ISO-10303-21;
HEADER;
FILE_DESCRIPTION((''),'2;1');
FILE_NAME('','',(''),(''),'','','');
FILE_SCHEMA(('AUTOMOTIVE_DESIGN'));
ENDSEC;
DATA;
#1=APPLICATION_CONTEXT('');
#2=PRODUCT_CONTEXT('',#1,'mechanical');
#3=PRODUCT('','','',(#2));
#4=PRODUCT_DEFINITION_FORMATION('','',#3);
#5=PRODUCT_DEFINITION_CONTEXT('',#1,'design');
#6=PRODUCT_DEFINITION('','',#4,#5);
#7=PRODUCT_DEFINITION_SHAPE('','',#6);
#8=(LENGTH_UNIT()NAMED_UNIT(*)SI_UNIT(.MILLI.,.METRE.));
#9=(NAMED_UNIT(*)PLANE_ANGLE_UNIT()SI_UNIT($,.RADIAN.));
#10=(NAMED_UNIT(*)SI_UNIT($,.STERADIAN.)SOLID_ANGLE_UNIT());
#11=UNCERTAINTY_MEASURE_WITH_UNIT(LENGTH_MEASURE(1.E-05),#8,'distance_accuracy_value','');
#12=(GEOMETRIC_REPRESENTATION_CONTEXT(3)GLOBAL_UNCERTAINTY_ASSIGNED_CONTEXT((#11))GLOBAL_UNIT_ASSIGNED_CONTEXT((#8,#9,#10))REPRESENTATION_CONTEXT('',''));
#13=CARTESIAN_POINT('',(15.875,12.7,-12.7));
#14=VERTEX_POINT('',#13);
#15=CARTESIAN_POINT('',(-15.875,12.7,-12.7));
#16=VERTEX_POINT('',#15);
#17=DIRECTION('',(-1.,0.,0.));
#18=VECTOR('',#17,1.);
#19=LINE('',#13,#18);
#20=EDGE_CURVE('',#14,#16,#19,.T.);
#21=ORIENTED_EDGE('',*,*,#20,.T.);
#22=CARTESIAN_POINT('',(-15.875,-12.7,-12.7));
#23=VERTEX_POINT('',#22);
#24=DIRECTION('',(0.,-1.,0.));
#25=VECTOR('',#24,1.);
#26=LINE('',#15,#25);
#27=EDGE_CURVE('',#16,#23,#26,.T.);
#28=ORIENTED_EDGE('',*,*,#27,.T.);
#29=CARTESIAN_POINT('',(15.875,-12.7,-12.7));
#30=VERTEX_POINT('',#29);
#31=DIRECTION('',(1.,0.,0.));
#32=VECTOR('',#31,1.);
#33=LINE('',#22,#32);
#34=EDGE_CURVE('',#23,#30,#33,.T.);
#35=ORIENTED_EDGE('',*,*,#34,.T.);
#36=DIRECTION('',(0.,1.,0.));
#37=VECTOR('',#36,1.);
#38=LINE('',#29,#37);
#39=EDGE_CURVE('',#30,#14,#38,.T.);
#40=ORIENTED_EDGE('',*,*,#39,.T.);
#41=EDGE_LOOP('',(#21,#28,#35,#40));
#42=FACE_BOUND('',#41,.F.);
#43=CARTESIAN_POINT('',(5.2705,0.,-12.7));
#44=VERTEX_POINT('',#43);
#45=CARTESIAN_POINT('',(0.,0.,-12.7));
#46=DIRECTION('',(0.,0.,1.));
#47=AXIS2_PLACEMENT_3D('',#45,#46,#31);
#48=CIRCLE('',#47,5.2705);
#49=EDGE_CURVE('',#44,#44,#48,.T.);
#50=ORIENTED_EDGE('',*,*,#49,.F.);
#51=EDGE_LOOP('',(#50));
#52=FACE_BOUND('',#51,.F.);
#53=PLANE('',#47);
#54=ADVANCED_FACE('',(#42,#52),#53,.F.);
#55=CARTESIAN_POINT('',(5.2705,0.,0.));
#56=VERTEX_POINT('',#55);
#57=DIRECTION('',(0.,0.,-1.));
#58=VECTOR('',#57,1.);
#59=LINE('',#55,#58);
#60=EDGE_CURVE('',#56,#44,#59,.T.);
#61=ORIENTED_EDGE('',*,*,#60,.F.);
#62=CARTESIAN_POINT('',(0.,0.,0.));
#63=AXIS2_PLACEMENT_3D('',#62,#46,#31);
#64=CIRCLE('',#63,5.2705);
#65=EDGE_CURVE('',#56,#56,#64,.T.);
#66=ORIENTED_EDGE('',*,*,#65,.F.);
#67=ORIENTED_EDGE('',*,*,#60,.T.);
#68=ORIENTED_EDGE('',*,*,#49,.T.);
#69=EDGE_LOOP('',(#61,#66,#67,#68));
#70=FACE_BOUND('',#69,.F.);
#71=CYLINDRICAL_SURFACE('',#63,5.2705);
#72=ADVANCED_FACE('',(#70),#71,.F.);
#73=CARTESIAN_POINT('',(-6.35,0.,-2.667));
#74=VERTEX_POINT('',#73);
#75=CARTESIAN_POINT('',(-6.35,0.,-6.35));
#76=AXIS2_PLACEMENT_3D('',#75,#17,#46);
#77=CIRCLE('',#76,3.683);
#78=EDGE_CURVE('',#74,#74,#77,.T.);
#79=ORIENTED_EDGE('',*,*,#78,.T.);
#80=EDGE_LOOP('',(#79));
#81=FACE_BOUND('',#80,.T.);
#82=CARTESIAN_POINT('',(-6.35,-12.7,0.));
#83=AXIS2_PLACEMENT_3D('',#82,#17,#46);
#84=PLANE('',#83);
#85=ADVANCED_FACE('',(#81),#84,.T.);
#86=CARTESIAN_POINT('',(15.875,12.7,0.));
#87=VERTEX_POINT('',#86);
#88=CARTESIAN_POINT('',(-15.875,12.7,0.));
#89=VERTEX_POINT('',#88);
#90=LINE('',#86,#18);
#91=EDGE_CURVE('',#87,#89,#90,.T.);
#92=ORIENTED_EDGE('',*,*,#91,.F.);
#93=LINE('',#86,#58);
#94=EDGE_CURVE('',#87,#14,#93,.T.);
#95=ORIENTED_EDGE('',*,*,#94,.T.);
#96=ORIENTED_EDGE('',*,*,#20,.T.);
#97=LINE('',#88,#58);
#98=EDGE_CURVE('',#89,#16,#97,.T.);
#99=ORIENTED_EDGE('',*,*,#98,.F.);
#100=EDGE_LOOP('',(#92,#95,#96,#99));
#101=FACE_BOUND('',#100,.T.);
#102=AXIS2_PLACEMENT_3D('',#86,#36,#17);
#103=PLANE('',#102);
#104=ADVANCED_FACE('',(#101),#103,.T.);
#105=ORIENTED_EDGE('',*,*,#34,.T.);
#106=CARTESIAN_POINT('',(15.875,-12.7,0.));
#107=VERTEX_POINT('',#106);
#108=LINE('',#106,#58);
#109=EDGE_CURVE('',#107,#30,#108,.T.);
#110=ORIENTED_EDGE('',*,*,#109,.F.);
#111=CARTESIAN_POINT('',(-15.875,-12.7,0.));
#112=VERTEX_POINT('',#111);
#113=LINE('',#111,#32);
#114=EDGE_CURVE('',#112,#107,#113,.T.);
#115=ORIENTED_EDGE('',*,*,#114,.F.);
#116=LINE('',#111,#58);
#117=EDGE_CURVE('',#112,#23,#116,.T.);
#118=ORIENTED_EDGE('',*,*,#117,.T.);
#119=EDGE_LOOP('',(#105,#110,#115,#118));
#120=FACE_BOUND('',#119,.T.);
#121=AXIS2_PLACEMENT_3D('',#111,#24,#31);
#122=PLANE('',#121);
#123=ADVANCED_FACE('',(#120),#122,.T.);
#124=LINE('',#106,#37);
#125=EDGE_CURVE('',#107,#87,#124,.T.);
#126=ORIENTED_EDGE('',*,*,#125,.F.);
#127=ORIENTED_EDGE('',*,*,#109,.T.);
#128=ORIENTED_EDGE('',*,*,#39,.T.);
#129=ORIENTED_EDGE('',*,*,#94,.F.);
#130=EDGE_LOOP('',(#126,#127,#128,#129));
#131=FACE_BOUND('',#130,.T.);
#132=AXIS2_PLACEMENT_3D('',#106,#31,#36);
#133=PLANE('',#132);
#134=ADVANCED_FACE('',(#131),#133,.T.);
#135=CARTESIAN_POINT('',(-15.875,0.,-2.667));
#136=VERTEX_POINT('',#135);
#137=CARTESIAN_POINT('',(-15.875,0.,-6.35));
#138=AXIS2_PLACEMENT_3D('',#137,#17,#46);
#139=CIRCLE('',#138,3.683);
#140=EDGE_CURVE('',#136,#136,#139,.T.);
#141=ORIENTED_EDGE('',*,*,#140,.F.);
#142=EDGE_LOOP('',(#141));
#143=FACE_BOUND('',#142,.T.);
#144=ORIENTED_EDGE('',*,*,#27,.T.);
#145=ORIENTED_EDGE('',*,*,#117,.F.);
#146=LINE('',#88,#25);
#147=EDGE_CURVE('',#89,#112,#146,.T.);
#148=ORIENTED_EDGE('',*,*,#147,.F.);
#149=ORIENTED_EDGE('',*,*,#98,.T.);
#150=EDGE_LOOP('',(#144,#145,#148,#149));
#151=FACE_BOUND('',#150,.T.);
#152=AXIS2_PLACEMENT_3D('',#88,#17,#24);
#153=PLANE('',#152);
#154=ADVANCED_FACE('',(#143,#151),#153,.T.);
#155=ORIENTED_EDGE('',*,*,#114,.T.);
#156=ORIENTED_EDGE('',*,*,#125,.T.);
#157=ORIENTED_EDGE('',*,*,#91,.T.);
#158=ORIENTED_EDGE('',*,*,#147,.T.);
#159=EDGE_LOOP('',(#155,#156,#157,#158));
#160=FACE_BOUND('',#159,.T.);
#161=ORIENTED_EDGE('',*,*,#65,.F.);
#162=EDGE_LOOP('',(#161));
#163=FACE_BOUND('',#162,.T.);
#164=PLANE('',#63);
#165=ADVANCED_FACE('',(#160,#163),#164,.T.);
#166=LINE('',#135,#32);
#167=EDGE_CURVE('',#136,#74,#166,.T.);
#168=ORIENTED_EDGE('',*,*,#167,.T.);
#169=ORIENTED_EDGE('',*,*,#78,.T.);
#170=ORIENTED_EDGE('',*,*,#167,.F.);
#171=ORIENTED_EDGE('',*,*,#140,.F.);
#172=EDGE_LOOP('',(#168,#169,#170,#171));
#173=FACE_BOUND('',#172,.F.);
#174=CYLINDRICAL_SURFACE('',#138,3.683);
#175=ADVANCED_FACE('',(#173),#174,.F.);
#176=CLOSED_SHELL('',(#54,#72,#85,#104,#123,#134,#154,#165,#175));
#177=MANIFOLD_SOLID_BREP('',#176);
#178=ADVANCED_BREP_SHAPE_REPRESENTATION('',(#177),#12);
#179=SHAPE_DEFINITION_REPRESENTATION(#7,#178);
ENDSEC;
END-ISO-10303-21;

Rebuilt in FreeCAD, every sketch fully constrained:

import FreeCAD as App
import Part
import Sketcher
from FreeCAD import Vector
Q = App.Units.Quantity

doc = App.newDocument("Part")
params = doc.addObject("Spreadsheet::Sheet", "Params")
for row, (alias, value) in enumerate([
    ("sketch1_height", "1 in"),
    ("sketch1_width", "1.25 in"),
    ("pad1_length", "0.5 in"),
    ("sketch2_diameter", "0.29 in"),
    ("pocket1_length", "0.375 in"),
    ("sketch3_diameter", "0.415 in"),
], start=1):
    params.set(f"A{row}", alias)
    params.set(f"B{row}", "=" + value)
    params.setAlias(f"B{row}", alias)

body = doc.addObject("PartDesign::Body", "Body")

# Sketch on XY plane
sketch1 = body.newObject("Sketcher::SketchObject", "Sketch")
sketch1.AttachmentSupport = (doc.getObject("XY_Plane"), [""])
sketch1.MapMode = "FlatFace"
sketch1.addGeometry(Part.LineSegment(Vector(-15.875, 12.7, 0), Vector(-15.875, -12.7, 0)), False)
sketch1.addGeometry(Part.LineSegment(Vector(-15.875, -12.7, 0), Vector(15.875, -12.7, 0)), False)
sketch1.addGeometry(Part.LineSegment(Vector(15.875, -12.7, 0), Vector(15.875, 12.7, 0)), False)
sketch1.addGeometry(Part.LineSegment(Vector(15.875, 12.7, 0), Vector(-15.875, 12.7, 0)), False)
sketch1.addConstraint(Sketcher.Constraint("Coincident", 0, 2, 1, 1))
sketch1.addConstraint(Sketcher.Constraint("Coincident", 1, 2, 2, 1))
sketch1.addConstraint(Sketcher.Constraint("Coincident", 2, 2, 3, 1))
sketch1.addConstraint(Sketcher.Constraint("Coincident", 3, 2, 0, 1))
sketch1.addConstraint(Sketcher.Constraint("Vertical", 0))
sketch1.addConstraint(Sketcher.Constraint("Horizontal", 1))
sketch1.addConstraint(Sketcher.Constraint("Vertical", 2))
sketch1.addConstraint(Sketcher.Constraint("Horizontal", 3))
sketch1.addConstraint(Sketcher.Constraint("Symmetric", 0, 2, 2, 2, -1, 1))
sketch1.addConstraint(Sketcher.Constraint("DistanceY", 0, 2, 0, 1, Q("1 in")))
sketch1.addConstraint(Sketcher.Constraint("DistanceX", 1, 1, 1, 2, Q("1.25 in")))
sketch1.setExpression("Constraints[9]", "Params.sketch1_height")
sketch1.setExpression("Constraints[10]", "Params.sketch1_width")
pad1 = body.newObject("PartDesign::Pad", "Pad")
pad1.Profile = sketch1
pad1.setExpression("Length", "Params.pad1_length")
pad1.Reversed = True

# Sketch on YZ plane
sketch2 = body.newObject("Sketcher::SketchObject", "Sketch001")
sketch2.AttachmentSupport = (doc.getObject("YZ_Plane"), [""])
sketch2.MapMode = "FlatFace"
sketch2.AttachmentOffset = App.Placement(Vector(0, 0, -0.625 * 25.4), App.Rotation())
sketch2.addGeometry(Part.Circle(Vector(0, -6.35, 0), Vector(0, 0, 1), 3.683), False)
sketch2.addConstraint(Sketcher.Constraint("PointOnObject", 0, 3, -2))
sketch2.addConstraint(Sketcher.Constraint("Diameter", 0, Q("0.29 in")))
sketch2.addConstraint(Sketcher.Constraint("DistanceY", 0, 3, -1, 1, Q("0.25 in")))
sketch2.setExpression("Constraints[1]", "Params.sketch2_diameter")
pocket1 = body.newObject("PartDesign::Pocket", "Pocket")
pocket1.Profile = sketch2
pocket1.setExpression("Length", "Params.pocket1_length")
pocket1.Reversed = True

# Sketch on XY plane
sketch3 = body.newObject("Sketcher::SketchObject", "Sketch002")
sketch3.AttachmentSupport = (doc.getObject("XY_Plane"), [""])
sketch3.MapMode = "FlatFace"
sketch3.addGeometry(Part.Circle(Vector(0, 0, 0), Vector(0, 0, 1), 5.2705), False)
sketch3.addConstraint(Sketcher.Constraint("Coincident", 0, 3, -1, 1))
sketch3.addConstraint(Sketcher.Constraint("Diameter", 0, Q("0.415 in")))
sketch3.setExpression("Constraints[1]", "Params.sketch3_diameter")
pocket2 = body.newObject("PartDesign::Pocket", "Pocket001")
pocket2.Profile = sketch3
pocket2.Type = "ThroughAll"

doc.recompute()
